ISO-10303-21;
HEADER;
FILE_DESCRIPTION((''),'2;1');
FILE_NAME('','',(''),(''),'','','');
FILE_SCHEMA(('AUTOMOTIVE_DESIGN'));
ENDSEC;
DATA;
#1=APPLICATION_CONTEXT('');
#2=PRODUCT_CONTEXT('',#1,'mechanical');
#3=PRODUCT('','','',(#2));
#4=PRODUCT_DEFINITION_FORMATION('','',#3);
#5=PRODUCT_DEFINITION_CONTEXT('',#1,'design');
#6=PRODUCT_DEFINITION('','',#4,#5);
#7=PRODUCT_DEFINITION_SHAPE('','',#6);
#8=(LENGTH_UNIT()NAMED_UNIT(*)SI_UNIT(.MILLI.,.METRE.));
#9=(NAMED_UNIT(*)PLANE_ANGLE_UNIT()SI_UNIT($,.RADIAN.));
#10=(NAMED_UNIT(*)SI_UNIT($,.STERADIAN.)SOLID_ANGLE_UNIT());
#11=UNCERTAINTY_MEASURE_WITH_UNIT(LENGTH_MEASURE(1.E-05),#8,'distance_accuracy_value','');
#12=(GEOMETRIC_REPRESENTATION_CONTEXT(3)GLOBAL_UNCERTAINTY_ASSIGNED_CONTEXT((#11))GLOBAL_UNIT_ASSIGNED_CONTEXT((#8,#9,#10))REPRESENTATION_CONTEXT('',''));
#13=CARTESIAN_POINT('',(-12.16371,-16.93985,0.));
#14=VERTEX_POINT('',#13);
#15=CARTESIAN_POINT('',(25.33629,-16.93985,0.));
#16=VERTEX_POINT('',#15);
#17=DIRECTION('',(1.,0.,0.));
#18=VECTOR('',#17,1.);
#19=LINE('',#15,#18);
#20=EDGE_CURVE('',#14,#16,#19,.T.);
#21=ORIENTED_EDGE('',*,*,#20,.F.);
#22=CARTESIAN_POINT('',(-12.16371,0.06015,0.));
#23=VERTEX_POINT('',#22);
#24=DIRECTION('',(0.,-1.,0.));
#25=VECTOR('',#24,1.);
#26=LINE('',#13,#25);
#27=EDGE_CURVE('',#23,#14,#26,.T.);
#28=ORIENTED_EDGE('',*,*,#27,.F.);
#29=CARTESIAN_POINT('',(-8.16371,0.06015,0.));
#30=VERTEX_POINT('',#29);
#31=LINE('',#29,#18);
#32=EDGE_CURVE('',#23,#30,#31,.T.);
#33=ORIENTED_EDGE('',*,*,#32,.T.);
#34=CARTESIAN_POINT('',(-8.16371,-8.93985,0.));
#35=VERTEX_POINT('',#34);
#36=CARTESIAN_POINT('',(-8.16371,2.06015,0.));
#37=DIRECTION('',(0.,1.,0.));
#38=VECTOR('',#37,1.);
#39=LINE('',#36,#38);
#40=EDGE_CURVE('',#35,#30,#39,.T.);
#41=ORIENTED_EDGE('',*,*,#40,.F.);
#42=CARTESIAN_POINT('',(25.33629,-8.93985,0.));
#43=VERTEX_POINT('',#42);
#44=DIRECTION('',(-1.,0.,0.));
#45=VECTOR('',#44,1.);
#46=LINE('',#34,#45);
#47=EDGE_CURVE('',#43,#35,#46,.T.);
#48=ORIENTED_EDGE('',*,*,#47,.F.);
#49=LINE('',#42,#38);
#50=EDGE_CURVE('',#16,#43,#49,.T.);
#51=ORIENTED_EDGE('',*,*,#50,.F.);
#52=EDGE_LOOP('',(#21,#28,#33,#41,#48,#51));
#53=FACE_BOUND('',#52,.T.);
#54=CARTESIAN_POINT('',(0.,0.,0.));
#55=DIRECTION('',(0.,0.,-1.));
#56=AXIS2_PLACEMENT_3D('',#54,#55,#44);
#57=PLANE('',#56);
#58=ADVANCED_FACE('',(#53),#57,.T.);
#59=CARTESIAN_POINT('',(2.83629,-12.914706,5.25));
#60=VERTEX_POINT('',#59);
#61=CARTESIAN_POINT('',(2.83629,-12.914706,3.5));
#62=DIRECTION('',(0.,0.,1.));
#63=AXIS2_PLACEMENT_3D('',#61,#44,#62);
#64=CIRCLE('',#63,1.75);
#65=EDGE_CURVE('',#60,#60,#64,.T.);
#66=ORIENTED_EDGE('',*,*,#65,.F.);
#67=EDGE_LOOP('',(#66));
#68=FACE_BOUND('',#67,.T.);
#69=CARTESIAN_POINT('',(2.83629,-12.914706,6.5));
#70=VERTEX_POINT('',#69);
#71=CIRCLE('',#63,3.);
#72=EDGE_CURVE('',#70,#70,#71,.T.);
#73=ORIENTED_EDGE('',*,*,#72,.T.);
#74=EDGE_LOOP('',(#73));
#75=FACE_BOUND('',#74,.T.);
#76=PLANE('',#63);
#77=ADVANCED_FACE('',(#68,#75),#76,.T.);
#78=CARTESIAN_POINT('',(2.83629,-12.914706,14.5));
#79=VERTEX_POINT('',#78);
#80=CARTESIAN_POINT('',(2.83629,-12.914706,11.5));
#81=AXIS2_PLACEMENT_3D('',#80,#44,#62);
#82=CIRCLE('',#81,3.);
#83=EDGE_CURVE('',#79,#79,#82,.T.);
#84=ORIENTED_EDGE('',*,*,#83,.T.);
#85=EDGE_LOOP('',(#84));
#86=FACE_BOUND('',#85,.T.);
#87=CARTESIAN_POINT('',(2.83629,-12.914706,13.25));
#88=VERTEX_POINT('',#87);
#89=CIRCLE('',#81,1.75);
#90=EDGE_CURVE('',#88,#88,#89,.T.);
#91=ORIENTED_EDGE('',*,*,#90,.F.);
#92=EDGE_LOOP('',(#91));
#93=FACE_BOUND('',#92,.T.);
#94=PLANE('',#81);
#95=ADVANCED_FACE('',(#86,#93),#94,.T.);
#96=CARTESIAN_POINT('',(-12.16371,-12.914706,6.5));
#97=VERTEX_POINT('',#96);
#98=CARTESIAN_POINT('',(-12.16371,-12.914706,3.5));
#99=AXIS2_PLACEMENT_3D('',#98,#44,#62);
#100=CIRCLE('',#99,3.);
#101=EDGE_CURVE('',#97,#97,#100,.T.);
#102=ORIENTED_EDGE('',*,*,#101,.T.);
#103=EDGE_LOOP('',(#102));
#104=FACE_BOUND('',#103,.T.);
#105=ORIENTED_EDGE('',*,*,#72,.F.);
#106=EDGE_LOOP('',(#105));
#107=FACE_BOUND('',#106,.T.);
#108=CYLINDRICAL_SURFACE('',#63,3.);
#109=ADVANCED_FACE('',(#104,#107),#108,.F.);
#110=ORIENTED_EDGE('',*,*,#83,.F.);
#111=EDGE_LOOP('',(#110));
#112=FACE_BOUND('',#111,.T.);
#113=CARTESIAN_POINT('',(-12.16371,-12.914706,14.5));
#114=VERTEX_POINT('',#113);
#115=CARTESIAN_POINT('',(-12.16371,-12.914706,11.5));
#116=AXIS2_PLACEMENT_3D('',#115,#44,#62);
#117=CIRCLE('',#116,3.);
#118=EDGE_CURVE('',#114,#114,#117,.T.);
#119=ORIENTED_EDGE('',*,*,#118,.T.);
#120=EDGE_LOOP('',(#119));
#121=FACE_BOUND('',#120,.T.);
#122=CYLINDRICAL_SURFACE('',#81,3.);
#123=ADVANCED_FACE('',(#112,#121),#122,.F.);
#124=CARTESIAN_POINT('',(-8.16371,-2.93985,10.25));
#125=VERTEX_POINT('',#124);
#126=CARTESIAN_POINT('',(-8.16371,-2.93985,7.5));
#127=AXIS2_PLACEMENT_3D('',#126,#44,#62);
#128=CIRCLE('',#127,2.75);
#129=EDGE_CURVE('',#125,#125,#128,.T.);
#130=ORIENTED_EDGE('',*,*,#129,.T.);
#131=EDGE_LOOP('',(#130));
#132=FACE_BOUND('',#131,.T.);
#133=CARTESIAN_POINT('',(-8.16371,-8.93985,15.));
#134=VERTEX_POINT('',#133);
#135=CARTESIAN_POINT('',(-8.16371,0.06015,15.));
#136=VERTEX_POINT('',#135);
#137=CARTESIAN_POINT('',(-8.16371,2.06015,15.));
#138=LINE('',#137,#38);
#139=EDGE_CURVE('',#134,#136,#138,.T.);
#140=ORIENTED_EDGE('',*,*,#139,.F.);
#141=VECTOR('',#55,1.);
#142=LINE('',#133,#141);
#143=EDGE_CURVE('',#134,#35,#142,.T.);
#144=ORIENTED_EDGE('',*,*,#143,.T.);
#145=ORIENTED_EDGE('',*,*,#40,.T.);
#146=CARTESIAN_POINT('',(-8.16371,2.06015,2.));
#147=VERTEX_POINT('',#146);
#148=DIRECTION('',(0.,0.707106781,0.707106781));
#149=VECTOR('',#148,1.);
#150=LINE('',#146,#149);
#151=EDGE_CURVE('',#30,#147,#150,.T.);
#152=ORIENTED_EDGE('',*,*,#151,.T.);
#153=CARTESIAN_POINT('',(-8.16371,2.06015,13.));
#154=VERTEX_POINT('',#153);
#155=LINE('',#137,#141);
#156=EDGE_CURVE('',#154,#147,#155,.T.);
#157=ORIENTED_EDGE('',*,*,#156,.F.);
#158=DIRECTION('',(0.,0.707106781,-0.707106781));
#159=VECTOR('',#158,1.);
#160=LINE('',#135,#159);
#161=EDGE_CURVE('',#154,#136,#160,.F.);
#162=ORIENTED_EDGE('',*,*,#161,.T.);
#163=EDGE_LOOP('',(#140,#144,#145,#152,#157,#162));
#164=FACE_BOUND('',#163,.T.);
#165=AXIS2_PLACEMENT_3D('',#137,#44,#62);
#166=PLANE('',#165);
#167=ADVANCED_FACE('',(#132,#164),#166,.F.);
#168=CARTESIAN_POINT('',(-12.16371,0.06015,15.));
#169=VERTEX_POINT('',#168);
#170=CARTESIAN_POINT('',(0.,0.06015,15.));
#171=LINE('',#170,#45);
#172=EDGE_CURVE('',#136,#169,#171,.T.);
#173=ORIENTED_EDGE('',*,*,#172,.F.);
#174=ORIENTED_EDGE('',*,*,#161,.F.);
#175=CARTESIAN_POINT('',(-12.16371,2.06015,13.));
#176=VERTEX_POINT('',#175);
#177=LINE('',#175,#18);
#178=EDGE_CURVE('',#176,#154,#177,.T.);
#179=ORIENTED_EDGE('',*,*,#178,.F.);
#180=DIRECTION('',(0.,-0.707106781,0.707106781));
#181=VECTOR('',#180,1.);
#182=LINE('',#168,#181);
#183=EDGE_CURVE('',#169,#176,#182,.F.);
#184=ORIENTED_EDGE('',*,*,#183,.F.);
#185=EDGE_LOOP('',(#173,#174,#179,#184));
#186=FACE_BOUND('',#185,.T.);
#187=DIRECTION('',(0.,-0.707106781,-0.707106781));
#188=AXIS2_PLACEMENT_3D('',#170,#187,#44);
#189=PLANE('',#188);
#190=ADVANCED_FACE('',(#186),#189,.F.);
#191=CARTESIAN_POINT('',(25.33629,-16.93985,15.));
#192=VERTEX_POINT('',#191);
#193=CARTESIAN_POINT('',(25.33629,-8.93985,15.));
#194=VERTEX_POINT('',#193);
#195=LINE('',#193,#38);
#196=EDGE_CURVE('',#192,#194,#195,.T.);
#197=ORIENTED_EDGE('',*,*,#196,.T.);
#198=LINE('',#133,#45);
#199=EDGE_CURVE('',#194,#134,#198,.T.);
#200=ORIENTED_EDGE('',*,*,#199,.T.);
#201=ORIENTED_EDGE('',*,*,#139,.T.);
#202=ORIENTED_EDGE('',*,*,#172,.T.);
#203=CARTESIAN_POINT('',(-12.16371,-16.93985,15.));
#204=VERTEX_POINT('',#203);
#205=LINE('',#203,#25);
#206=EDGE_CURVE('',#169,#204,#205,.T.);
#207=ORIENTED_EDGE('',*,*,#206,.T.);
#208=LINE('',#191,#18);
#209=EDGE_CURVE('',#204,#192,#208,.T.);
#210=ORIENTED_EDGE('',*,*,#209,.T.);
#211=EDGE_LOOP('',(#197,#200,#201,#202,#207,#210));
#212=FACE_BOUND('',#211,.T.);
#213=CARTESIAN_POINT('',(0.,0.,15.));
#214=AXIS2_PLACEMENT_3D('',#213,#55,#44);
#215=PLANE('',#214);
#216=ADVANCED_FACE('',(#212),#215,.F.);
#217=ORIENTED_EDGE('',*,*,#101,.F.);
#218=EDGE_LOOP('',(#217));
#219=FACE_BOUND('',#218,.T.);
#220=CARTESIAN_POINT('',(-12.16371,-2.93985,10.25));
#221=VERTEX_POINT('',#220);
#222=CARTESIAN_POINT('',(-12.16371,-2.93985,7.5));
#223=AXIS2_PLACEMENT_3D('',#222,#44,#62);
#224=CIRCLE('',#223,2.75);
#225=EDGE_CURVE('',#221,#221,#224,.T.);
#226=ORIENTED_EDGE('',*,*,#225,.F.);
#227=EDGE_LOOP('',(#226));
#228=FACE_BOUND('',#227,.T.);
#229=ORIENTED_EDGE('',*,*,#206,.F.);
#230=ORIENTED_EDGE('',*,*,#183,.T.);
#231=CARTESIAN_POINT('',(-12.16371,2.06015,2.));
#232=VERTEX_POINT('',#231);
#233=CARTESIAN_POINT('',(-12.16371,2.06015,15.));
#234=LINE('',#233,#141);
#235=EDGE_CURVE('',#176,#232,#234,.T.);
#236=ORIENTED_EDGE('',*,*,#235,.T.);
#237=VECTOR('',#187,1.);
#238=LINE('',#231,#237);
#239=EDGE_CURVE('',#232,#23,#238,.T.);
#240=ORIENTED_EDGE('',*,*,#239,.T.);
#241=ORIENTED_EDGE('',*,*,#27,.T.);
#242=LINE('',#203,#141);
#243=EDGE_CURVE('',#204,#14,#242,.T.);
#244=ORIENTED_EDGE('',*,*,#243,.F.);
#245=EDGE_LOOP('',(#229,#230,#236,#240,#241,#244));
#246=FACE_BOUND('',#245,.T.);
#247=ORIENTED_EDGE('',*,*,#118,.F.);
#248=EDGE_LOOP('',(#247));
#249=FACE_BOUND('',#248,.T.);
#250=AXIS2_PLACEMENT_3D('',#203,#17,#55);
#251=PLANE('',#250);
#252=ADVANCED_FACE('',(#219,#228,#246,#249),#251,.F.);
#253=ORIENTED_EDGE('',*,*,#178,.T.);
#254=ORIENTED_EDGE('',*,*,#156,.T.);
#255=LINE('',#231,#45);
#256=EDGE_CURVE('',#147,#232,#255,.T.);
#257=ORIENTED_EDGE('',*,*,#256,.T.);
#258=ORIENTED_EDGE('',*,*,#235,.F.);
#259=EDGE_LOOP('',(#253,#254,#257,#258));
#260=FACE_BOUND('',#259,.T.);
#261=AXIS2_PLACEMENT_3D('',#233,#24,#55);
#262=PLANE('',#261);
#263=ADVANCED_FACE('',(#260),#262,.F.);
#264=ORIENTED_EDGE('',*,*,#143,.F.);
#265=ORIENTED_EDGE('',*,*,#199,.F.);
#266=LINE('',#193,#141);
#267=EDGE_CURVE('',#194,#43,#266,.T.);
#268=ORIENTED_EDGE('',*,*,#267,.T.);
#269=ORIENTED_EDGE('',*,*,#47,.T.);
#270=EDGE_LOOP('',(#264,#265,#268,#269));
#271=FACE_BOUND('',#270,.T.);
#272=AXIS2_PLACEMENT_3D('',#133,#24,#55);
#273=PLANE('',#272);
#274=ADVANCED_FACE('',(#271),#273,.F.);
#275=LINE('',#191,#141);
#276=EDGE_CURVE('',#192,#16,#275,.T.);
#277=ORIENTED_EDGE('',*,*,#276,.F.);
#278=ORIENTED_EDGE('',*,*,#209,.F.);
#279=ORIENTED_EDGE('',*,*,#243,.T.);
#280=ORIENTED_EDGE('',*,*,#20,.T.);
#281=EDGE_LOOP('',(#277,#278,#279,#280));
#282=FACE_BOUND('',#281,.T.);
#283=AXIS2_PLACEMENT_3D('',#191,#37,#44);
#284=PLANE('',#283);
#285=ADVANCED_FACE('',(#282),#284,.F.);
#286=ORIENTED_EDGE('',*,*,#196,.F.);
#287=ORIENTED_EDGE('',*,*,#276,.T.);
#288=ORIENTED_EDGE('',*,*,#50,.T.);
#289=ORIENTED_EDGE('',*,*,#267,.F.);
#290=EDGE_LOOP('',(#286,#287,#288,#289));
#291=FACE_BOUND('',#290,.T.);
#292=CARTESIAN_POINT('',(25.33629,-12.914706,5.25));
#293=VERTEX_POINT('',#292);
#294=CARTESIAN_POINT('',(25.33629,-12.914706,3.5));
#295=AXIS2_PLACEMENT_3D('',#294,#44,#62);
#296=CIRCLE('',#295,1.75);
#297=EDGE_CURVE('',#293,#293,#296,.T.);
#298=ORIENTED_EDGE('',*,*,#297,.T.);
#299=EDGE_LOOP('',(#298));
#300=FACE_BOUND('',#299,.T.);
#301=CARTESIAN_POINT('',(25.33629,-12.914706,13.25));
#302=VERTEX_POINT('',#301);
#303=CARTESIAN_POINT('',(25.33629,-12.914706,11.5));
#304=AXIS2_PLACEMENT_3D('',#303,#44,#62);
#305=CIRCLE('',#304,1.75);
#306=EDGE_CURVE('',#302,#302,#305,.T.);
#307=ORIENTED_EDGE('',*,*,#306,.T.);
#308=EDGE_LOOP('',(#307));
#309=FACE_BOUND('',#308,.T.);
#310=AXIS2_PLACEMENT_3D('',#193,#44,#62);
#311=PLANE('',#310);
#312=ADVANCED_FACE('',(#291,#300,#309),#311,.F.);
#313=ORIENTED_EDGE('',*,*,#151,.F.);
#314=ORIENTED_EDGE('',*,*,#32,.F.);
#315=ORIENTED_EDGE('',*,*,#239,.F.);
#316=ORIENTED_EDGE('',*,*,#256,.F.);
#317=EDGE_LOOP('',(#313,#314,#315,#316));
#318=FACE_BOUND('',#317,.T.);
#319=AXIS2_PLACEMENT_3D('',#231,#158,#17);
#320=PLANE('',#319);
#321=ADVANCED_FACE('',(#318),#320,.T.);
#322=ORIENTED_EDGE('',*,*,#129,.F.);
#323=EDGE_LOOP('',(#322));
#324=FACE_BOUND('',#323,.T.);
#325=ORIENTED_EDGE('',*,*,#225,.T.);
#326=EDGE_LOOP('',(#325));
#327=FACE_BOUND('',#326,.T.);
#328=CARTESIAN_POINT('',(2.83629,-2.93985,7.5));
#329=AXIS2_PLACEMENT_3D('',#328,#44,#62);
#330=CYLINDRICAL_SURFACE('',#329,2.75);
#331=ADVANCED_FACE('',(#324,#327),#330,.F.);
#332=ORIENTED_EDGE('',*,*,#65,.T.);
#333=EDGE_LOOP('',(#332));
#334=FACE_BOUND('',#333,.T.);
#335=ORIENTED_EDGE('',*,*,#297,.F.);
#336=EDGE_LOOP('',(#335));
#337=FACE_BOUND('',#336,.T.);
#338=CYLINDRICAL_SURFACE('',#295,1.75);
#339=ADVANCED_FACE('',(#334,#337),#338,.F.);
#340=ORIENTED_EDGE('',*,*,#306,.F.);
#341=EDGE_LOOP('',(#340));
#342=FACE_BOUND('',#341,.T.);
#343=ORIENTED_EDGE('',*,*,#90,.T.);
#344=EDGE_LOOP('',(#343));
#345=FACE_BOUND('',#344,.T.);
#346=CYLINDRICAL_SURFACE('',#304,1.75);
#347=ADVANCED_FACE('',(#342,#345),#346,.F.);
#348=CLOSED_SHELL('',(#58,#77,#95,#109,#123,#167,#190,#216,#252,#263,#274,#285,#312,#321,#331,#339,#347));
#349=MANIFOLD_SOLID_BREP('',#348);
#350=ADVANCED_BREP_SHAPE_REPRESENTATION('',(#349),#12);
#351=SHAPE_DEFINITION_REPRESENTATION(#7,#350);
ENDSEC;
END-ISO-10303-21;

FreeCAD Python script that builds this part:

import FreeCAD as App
import Part
import Sketcher

V = App.Vector


def edges_at(feature, points):
    """Names of the edges that pass closest to the given points."""
    edges = feature.Shape.Edges
    near = lambda p: min(range(len(edges)), key=lambda i: edges[i].distToShape(Part.Vertex(*p))[0])
    return sorted({f"Edge{near(p) + 1}" for p in points})


def add_polygon(sketch, points):
    """Adds a closed chain of lines whose ends are joined by coincident constraints."""
    first, n = sketch.GeometryCount, len(points)
    for a, b in zip(points, points[1:] + points[:1]):
        sketch.addGeometry(Part.LineSegment(App.Vector(*a, 0), App.Vector(*b, 0)), False)
    for i in range(n):
        sketch.addConstraint(Sketcher.Constraint("Coincident", first + i, 2, first + (i + 1) % n, 1))

doc = App.newDocument("Part")
body = doc.addObject("PartDesign::Body", "Body")

sketch1 = doc.addObject("Sketcher::SketchObject", "Sketch")
body.addObject(sketch1)
sketch1.AttachmentSupport = (doc.XY_Plane, [""])
sketch1.MapMode = "FlatFace"
add_polygon(sketch1, [(-8.2, 2.1), (-12.2, 2.1), (-12.2, -16.9), (25.3, -16.9), (25.3, -8.9), (-8.2, -8.9)])
sketch1.addConstraint(Sketcher.Constraint("Horizontal", 0))
sketch1.addConstraint(Sketcher.Constraint("Vertical", 1))
sketch1.addConstraint(Sketcher.Constraint("Horizontal", 2))
sketch1.addConstraint(Sketcher.Constraint("Vertical", 3))
sketch1.addConstraint(Sketcher.Constraint("Horizontal", 4))
sketch1.addConstraint(Sketcher.Constraint("Vertical", 5))
sketch1.addConstraint(Sketcher.Constraint("DistanceX", 0, 2, 0, 1, 4.0))
sketch1.addConstraint(Sketcher.Constraint("DistanceY", 1, 2, 1, 1, 19.0))
sketch1.addConstraint(Sketcher.Constraint("DistanceY", 3, 1, 3, 2, 8.0))
sketch1.addConstraint(Sketcher.Constraint("DistanceX", 2, 1, 2, 2, 37.5))
sketch1.addConstraint(Sketcher.Constraint("DistanceX", 0, 2, -1, 1, 12.16371))
sketch1.addConstraint(Sketcher.Constraint("DistanceY", -1, 1, 0, 2, 2.06015))
pad1 = doc.addObject("PartDesign::Pad", "Pad")
body.addObject(pad1)
pad1.Profile = sketch1
pad1.Length = 15

sketch2 = doc.addObject("Sketcher::SketchObject", "Sketch001")
body.addObject(sketch2)
sketch2.AttachmentSupport = (doc.YZ_Plane, [""])
sketch2.MapMode = "FlatFace"
sketch2.AttachmentOffset = App.Placement(V(0, 0, -12.16371), App.Rotation())
sketch2.addGeometry(Part.Circle(V(-2.9, 7.5, 0), V(0, 0, 1), 2.8), False)
sketch2.addGeometry(Part.Circle(V(-12.9, 11.5, 0), V(0, 0, 1), 3), False)
sketch2.addGeometry(Part.Circle(V(-12.9, 11.5, 0), V(0, 0, 1), 1.8), False)
sketch2.addGeometry(Part.Circle(V(-12.9, 3.5, 0), V(0, 0, 1), 3), False)
sketch2.addGeometry(Part.Circle(V(-12.9, 3.5, 0), V(0, 0, 1), 1.8), False)
sketch2.addConstraint(Sketcher.Constraint("Coincident", 2, 3, 1, 3))
sketch2.addConstraint(Sketcher.Constraint("Coincident", 4, 3, 3, 3))
sketch2.addConstraint(Sketcher.Constraint("Equal", 1, 3))
sketch2.addConstraint(Sketcher.Constraint("Equal", 2, 4))
sketch2.addConstraint(Sketcher.Constraint("Vertical", 2, 3, 3, 3))
sketch2.addConstraint(Sketcher.Constraint("Diameter", 1, 6.0))
sketch2.addConstraint(Sketcher.Constraint("Diameter", 0, 5.5))
sketch2.addConstraint(Sketcher.Constraint("Diameter", 2, 3.5))
sketch2.addConstraint(Sketcher.Constraint("DistanceY", 0, 3, 1, 3, 4.0))
sketch2.addConstraint(Sketcher.Constraint("DistanceY", 3, 3, 1, 3, 8.0))
sketch2.addConstraint(Sketcher.Constraint("DistanceY", -1, 1, 0, 3, 7.5))
sketch2.addConstraint(Sketcher.Constraint("DistanceX", 0, 3, -1, 1, 2.93985))
sketch2.addConstraint(Sketcher.Constraint("DistanceX", 1, 3, -1, 1, 12.914706))
pocket1 = doc.addObject("PartDesign::Pocket", "Pocket")
body.addObject(pocket1)
pocket1.Profile = sketch2
pocket1.Length = 15
pocket1.Reversed = True

sketch3 = doc.addObject("Sketcher::SketchObject", "Sketch002")
body.addObject(sketch3)
sketch3.AttachmentSupport = (doc.YZ_Plane, [""])
sketch3.MapMode = "FlatFace"
sketch3.AttachmentOffset = App.Placement(V(0, 0, -12.16371), App.Rotation())
sketch3.addGeometry(Part.Circle(V(-12.9, 3.5, 0), V(0, 0, 1), 1.8), False)
sketch3.addGeometry(Part.Circle(V(-12.9, 11.5, 0), V(0, 0, 1), 1.8), False)
sketch3.addConstraint(Sketcher.Constraint("Equal", 0, 1))
sketch3.addConstraint(Sketcher.Constraint("Vertical", 0, 3, 1, 3))
sketch3.addConstraint(Sketcher.Constraint("Diameter", 0, 3.5))
sketch3.addConstraint(Sketcher.Constraint("DistanceY", 0, 3, 1, 3, 8.0))
sketch3.addConstraint(Sketcher.Constraint("DistanceY", -1, 1, 0, 3, 3.5))
sketch3.addConstraint(Sketcher.Constraint("DistanceX", 0, 3, -1, 1, 12.914706))
pocket2 = doc.addObject("PartDesign::Pocket", "Pocket001")
body.addObject(pocket2)
pocket2.Profile = sketch3
pocket2.Type = "ThroughAll"
pocket2.Reversed = True
doc.recompute()

chamfer = doc.addObject("PartDesign::Chamfer", "Chamfer")
body.addObject(chamfer)
chamfer.Base = (pocket2, edges_at(pocket2, [(-10.164, 2.06, 15), (-10.164, 2.06, 0)]))
chamfer.Size = 2

doc.recompute()
